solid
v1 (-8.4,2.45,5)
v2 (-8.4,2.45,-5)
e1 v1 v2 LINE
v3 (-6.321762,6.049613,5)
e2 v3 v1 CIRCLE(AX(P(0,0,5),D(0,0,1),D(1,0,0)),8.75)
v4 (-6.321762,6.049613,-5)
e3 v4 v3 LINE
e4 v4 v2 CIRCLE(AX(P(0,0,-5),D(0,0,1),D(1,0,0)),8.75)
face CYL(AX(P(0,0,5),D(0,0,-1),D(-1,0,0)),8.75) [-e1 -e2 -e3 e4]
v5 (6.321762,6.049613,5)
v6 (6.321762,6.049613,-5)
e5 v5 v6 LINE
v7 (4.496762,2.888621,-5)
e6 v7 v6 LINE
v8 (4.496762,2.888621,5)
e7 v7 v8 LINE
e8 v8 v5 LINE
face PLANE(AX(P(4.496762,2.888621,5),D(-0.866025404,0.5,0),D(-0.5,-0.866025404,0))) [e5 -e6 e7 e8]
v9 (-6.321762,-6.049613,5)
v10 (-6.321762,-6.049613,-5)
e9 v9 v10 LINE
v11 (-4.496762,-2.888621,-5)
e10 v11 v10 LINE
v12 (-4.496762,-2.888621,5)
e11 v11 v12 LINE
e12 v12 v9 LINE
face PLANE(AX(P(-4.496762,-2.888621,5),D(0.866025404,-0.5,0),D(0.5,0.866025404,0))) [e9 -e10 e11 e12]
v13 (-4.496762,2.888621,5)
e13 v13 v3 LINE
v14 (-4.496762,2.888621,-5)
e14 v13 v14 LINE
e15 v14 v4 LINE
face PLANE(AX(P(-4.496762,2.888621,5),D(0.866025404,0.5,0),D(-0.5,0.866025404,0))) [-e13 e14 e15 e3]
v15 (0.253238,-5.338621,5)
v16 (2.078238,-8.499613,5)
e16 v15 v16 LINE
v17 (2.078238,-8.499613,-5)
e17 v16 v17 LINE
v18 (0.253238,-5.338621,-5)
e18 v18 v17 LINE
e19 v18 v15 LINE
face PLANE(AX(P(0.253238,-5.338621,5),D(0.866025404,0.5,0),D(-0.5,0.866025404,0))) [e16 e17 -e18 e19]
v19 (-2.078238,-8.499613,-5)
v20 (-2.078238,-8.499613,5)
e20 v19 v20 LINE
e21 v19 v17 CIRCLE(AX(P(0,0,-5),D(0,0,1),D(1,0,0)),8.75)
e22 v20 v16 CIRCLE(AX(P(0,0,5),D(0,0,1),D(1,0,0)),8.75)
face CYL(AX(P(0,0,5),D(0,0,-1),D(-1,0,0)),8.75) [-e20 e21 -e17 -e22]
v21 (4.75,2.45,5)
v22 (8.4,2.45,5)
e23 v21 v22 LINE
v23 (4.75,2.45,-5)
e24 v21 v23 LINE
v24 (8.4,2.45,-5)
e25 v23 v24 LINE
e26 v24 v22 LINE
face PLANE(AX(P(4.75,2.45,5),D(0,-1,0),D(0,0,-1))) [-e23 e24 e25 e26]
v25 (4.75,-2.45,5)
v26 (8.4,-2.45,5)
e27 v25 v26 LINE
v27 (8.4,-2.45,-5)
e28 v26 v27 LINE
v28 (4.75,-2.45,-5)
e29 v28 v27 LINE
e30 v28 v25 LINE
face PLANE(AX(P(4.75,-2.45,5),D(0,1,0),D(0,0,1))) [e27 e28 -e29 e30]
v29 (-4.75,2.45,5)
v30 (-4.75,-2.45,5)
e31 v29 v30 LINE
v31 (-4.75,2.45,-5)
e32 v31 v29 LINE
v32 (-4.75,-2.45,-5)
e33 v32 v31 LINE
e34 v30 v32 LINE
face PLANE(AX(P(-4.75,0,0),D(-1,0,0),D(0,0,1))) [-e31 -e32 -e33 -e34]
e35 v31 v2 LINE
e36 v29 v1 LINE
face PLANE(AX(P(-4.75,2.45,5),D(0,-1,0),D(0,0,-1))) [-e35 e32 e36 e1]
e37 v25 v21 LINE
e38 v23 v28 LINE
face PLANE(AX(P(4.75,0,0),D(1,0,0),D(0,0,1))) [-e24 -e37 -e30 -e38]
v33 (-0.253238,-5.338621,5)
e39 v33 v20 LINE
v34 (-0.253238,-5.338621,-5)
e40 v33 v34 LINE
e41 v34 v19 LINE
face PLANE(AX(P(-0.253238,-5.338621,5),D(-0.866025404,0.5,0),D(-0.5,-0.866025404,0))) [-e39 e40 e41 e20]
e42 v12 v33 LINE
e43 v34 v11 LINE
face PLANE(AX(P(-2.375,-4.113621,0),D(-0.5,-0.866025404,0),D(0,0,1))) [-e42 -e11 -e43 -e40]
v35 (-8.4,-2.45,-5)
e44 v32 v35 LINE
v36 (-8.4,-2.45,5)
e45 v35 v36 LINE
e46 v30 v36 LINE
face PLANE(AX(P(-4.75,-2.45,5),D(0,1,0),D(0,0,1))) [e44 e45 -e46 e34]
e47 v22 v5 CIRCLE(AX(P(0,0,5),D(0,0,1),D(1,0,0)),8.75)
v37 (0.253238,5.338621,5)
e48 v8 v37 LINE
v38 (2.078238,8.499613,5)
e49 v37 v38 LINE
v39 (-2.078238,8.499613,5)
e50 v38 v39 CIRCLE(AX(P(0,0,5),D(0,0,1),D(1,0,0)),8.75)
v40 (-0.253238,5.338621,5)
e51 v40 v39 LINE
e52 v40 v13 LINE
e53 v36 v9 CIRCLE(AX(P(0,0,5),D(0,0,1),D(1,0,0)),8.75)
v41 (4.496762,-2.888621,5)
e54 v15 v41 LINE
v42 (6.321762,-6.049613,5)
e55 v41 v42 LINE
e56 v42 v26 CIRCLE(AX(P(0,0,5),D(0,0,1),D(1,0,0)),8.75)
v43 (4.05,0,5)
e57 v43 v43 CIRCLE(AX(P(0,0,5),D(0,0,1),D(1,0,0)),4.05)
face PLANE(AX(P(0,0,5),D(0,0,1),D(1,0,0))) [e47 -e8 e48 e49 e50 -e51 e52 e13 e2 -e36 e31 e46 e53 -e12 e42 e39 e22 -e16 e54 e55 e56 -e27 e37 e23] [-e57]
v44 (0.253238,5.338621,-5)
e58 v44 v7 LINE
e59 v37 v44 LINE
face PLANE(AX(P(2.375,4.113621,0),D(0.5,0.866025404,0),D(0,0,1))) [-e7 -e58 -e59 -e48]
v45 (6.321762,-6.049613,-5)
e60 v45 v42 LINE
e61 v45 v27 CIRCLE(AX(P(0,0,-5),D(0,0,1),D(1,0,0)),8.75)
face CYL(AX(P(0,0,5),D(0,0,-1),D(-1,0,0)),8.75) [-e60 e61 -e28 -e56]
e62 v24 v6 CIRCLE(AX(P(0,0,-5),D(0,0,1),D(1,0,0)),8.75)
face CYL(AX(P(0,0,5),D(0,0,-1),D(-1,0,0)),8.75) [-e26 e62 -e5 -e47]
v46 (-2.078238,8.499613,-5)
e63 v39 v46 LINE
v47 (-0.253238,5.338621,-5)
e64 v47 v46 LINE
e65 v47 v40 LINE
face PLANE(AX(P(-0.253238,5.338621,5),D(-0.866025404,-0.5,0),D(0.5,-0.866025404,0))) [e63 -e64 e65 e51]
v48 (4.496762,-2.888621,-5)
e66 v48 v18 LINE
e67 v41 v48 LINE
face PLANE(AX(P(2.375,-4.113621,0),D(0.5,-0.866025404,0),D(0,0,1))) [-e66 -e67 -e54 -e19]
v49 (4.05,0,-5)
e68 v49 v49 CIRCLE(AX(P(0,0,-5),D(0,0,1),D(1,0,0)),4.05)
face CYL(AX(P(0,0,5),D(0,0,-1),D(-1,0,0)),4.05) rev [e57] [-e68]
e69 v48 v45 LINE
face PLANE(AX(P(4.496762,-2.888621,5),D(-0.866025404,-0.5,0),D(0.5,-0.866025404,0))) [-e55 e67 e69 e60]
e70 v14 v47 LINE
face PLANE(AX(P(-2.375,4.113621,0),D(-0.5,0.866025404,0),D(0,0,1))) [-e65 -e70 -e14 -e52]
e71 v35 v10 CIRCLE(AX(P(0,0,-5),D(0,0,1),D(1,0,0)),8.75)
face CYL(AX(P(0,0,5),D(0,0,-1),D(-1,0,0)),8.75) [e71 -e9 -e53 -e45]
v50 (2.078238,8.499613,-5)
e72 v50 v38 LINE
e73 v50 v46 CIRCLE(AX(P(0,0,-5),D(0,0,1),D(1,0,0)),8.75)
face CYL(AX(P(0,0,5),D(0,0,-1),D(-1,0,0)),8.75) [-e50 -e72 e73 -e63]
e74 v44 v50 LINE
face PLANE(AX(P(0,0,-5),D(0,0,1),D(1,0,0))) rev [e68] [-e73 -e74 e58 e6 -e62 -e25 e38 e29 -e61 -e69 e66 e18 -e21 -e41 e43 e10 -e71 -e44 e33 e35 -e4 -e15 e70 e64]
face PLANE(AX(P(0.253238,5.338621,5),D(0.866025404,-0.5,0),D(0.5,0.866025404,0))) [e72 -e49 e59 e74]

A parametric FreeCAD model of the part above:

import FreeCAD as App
import Part
import Sketcher

doc = App.newDocument("Part")
body = doc.addObject("PartDesign::Body", "Body")

# Sketch on XY plane
sketch1 = doc.addObject("Sketcher::SketchObject", "Sketch")
body.addObject(sketch1)
sketch1.AttachmentSupport = (doc.XY_Plane, [""])
sketch1.MapMode = "FlatFace"
sketch1.addGeometry([
    Part.Circle(App.Vector(0, 0, 0), App.Vector(0, 0, 1), 8.75),
    Part.Circle(App.Vector(0, 0, 0), App.Vector(0, 0, 1), 4.05),
], False)
sketch1.addConstraint([
    Sketcher.Constraint("Coincident", 0, 3, -1, 1),
    Sketcher.Constraint("Coincident", 1, 3, -1, 1),
    Sketcher.Constraint("Diameter", 0, 17.5),
    Sketcher.Constraint("Diameter", 1, 8.1),
])
pad1 = doc.addObject("PartDesign::Pad", "Pad")
body.addObject(pad1)
pad1.Profile = sketch1
pad1.Length = 10
pad1.Midplane = True

# Sketch on YZ plane
sketch2 = doc.addObject("Sketcher::SketchObject", "Sketch001")
body.addObject(sketch2)
sketch2.AttachmentSupport = (doc.YZ_Plane, [""])
sketch2.MapMode = "FlatFace"
sketch2.AttachmentOffset = App.Placement(App.Vector(0, 0, -8.75), App.Rotation())
sketch2.addGeometry([
    Part.LineSegment(App.Vector(2.45, -5, 0), App.Vector(2.45, 5, 0)),
    Part.LineSegment(App.Vector(2.45, 5, 0), App.Vector(-2.45, 5, 0)),
    Part.LineSegment(App.Vector(-2.45, 5, 0), App.Vector(-2.45, -5, 0)),
    Part.LineSegment(App.Vector(-2.45, -5, 0), App.Vector(2.45, -5, 0)),
], False)
sketch2.addConstraint([
    Sketcher.Constraint("Coincident", 0, 2, 1, 1),
    Sketcher.Constraint("Coincident", 1, 2, 2, 1),
    Sketcher.Constraint("Coincident", 2, 2, 3, 1),
    Sketcher.Constraint("Coincident", 3, 2, 0, 1),
    Sketcher.Constraint("Vertical", 0),
    Sketcher.Constraint("Horizontal", 1),
    Sketcher.Constraint("Vertical", 2),
    Sketcher.Constraint("Horizontal", 3),
    Sketcher.Constraint("Symmetric", 0, 2, 2, 2, -1, 1),
    Sketcher.Constraint("DistanceY", 0, 1, 0, 2, 10.0),
    Sketcher.Constraint("DistanceX", 1, 2, 1, 1, 4.9),
])
pocket1 = doc.addObject("PartDesign::Pocket", "Pocket")
body.addObject(pocket1)
pocket1.Profile = sketch2
pocket1.Length = 4
pocket1.Reversed = True
doc.recompute()

polarpattern = doc.addObject("PartDesign::PolarPattern", "PolarPattern")
body.addObject(polarpattern)
polarpattern.Originals = [pocket1]
polarpattern.Axis = (doc.Z_Axis, [""])
polarpattern.Angle = 360
polarpattern.Occurrences = 6
body.Tip = polarpattern

doc.recompute()
